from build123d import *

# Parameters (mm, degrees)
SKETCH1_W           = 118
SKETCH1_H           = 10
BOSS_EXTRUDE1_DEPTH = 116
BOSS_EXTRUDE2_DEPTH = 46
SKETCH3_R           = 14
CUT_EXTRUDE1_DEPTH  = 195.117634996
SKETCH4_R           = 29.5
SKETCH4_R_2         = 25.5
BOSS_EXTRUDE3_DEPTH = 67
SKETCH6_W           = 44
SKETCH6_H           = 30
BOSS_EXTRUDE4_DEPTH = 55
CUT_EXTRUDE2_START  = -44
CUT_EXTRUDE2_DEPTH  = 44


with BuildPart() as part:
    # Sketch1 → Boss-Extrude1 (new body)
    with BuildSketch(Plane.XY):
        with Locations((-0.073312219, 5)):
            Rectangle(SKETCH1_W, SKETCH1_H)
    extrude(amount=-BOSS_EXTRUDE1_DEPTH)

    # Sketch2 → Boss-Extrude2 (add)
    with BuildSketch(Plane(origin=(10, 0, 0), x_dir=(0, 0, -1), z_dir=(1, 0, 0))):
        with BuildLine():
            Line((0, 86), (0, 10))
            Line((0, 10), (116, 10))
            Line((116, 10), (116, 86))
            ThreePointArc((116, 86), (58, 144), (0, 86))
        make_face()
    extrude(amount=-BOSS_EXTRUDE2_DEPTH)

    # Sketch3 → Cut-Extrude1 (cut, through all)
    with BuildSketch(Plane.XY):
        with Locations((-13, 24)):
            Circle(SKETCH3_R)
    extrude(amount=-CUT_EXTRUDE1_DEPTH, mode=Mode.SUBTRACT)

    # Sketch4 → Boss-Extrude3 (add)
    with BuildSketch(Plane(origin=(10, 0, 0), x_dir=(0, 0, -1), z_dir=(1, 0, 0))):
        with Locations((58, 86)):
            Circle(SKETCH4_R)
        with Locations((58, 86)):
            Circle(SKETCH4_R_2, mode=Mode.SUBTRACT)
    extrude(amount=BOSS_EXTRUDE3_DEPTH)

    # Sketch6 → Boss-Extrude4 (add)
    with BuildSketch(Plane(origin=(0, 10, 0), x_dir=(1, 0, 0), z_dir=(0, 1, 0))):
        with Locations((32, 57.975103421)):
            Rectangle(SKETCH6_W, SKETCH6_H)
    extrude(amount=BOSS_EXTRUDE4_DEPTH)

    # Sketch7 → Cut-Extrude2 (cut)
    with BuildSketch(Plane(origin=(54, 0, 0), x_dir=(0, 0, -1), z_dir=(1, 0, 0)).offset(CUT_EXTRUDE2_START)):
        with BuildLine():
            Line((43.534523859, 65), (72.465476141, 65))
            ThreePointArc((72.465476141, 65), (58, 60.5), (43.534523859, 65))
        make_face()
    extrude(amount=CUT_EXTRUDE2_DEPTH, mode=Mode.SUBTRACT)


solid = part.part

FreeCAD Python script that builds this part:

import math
import FreeCAD as App
import Part
import Sketcher
from FreeCAD import Vector
Q = App.Units.Quantity

doc = App.newDocument("Part")
body = doc.addObject("PartDesign::Body", "Body")

# Sketch on XY plane
sketch1 = body.newObject("Sketcher::SketchObject", "Sketch")
sketch1.AttachmentSupport = (doc.getObject("XY_Plane"), [""])
sketch1.MapMode = "FlatFace"
sketch1.addGeometry([
    Part.LineSegment(Vector(-59.073312, 10, 0), Vector(-59.073312, 0, 0)),
    Part.LineSegment(Vector(-59.073312, 0, 0), Vector(58.926688, 0, 0)),
    Part.LineSegment(Vector(58.926688, 0, 0), Vector(58.926688, 10, 0)),
    Part.LineSegment(Vector(58.926688, 10, 0), Vector(-59.073312, 10, 0)),
], False)
sketch1.addConstraint([
    Sketcher.Constraint("Coincident", 0, 2, 1, 1),
    Sketcher.Constraint("Coincident", 1, 2, 2, 1),
    Sketcher.Constraint("Coincident", 2, 2, 3, 1),
    Sketcher.Constraint("Coincident", 3, 2, 0, 1),
    Sketcher.Constraint("Vertical", 0),
    Sketcher.Constraint("Horizontal", 1),
    Sketcher.Constraint("Vertical", 2),
    Sketcher.Constraint("Horizontal", 3),
    Sketcher.Constraint("PointOnObject", 0, 2, -1),
    Sketcher.Constraint("DistanceX", 1, 1, 1, 2, Q("118 mm")),
    Sketcher.Constraint("DistanceY", 0, 2, 0, 1, Q("10 mm")),
    Sketcher.Constraint("DistanceX", 0, 2, -1, 1, Q("59.073312 mm")),
])
pad1 = body.newObject("PartDesign::Pad", "Pad")
pad1.Profile = sketch1
pad1.Length = 116
pad1.Reversed = True

# Sketch on YZ plane
sketch2 = body.newObject("Sketcher::SketchObject", "Sketch001")
sketch2.AttachmentSupport = (doc.getObject("YZ_Plane"), [""])
sketch2.MapMode = "FlatFace"
sketch2.AttachmentOffset = App.Placement(Vector(0, 0, 10), App.Rotation())
sketch2.addGeometry([
    Part.LineSegment(Vector(86, 0, 0), Vector(10, 0, 0)),
    Part.LineSegment(Vector(10, 0, 0), Vector(10, -116, 0)),
    Part.LineSegment(Vector(10, -116, 0), Vector(86, -116, 0)),
    Part.ArcOfCircle(Part.Circle(Vector(86, -58, 0), Vector(0, 0, 1), 58), math.radians(-90), math.radians(90)),
], False)
sketch2.addConstraint([
    Sketcher.Constraint("Coincident", 0, 2, 1, 1),
    Sketcher.Constraint("Coincident", 1, 2, 2, 1),
    Sketcher.Constraint("Tangent", 2, 2, 3, 1),
    Sketcher.Constraint("Tangent", 3, 2, 0, 1),
    Sketcher.Constraint("Horizontal", 0),
    Sketcher.Constraint("Vertical", 1),
    Sketcher.Constraint("Horizontal", 2),
    Sketcher.Constraint("PointOnObject", 0, 2, -1),
    Sketcher.Constraint("Radius", 3, Q("58 mm")),
    Sketcher.Constraint("DistanceX", 0, 2, 0, 1, Q("76 mm")),
    Sketcher.Constraint("DistanceX", -1, 1, 3, 3, Q("86 mm")),
])
pad2 = body.newObject("PartDesign::Pad", "Pad001")
pad2.Profile = sketch2
pad2.Length = 46
pad2.Reversed = True

# Sketch on XY plane
sketch3 = body.newObject("Sketcher::SketchObject", "Sketch002")
sketch3.AttachmentSupport = (doc.getObject("XY_Plane"), [""])
sketch3.MapMode = "FlatFace"
sketch3.addGeometry(Part.Circle(Vector(-13, 24, 0), Vector(0, 0, 1), 14), False)
sketch3.addConstraint([
    Sketcher.Constraint("Diameter", 0, Q("28 mm")),
    Sketcher.Constraint("DistanceX", 0, 3, -1, 1, Q("13 mm")),
    Sketcher.Constraint("DistanceY", -1, 1, 0, 3, Q("24 mm")),
])
pocket1 = body.newObject("PartDesign::Pocket", "Pocket")
pocket1.Profile = sketch3
pocket1.Type = "ThroughAll"

# Sketch on YZ plane
sketch4 = body.newObject("Sketcher::SketchObject", "Sketch003")
sketch4.AttachmentSupport = (doc.getObject("YZ_Plane"), [""])
sketch4.MapMode = "FlatFace"
sketch4.AttachmentOffset = App.Placement(Vector(0, 0, 10), App.Rotation())
sketch4.addGeometry([
    Part.Circle(Vector(86, -58, 0), Vector(0, 0, 1), 29.5),
    Part.Circle(Vector(86, -58, 0), Vector(0, 0, 1), 25.5),
], False)
sketch4.addConstraint([
    Sketcher.Constraint("Coincident", 1, 3, 0, 3),
    Sketcher.Constraint("Diameter", 0, Q("59 mm")),
    Sketcher.Constraint("Diameter", 1, Q("51 mm")),
    Sketcher.Constraint("DistanceX", -1, 1, 0, 3, Q("86 mm")),
    Sketcher.Constraint("DistanceY", 0, 3, -1, 1, Q("58 mm")),
])
pad3 = body.newObject("PartDesign::Pad", "Pad002")
pad3.Profile = sketch4
pad3.Length = 67

# Sketch on XZ plane
sketch5 = body.newObject("Sketcher::SketchObject", "Sketch004")
sketch5.AttachmentSupport = (doc.getObject("XZ_Plane"), [""])
sketch5.MapMode = "FlatFace"
sketch5.AttachmentOffset = App.Placement(Vector(0, 0, -10), App.Rotation())
sketch5.addGeometry([
    Part.LineSegment(Vector(10, -72.975103, 0), Vector(10, -42.975103, 0)),
    Part.LineSegment(Vector(10, -42.975103, 0), Vector(54, -42.975103, 0)),
    Part.LineSegment(Vector(54, -42.975103, 0), Vector(54, -72.975103, 0)),
    Part.LineSegment(Vector(54, -72.975103, 0), Vector(10, -72.975103, 0)),
], False)
sketch5.addConstraint([
    Sketcher.Constraint("Coincident", 0, 2, 1, 1),
    Sketcher.Constraint("Coincident", 1, 2, 2, 1),
    Sketcher.Constraint("Coincident", 2, 2, 3, 1),
    Sketcher.Constraint("Coincident", 3, 2, 0, 1),
    Sketcher.Constraint("Vertical", 0),
    Sketcher.Constraint("Horizontal", 1),
    Sketcher.Constraint("Vertical", 2),
    Sketcher.Constraint("Horizontal", 3),
    Sketcher.Constraint("DistanceX", 1, 1, 1, 2, Q("44 mm")),
    Sketcher.Constraint("DistanceY", 0, 1, 0, 2, Q("30 mm")),
    Sketcher.Constraint("DistanceX", -1, 1, 0, 2, Q("10 mm")),
    Sketcher.Constraint("DistanceY", 0, 2, -1, 1, Q("42.975103 mm")),
])
pad4 = body.newObject("PartDesign::Pad", "Pad003")
pad4.Profile = sketch5
pad4.Length = 55
pad4.Reversed = True

# Sketch on YZ plane
sketch6 = body.newObject("Sketcher::SketchObject", "Sketch005")
sketch6.AttachmentSupport = (doc.getObject("YZ_Plane"), [""])
sketch6.MapMode = "FlatFace"
sketch6.AttachmentOffset = App.Placement(Vector(0, 0, 10), App.Rotation())
sketch6.addGeometry([
    Part.LineSegment(Vector(65, -72.465476, 0), Vector(65, -43.534524, 0)),
    Part.ArcOfCircle(Part.Circle(Vector(86, -58, 0), Vector(0, 0, 1), 25.5), math.radians(145.439678), math.radians(214.560322)),
], False)
sketch6.addConstraint([
    Sketcher.Constraint("Coincident", 0, 1, 1, 2),
    Sketcher.Constraint("Coincident", 1, 1, 0, 2),
    Sketcher.Constraint("Vertical", 0),
    Sketcher.Constraint("Radius", 1, Q("25.5 mm")),
    Sketcher.Constraint("DistanceX", -1, 1, 1, 3, Q("86 mm")),
    Sketcher.Constraint("DistanceY", 1, 3, -1, 1, Q("58 mm")),
    Sketcher.Constraint("DistanceX", -1, 1, 0, 1, Q("65 mm")),
])
pocket2 = body.newObject("PartDesign::Pocket", "Pocket001")
pocket2.Profile = sketch6
pocket2.Length = 44
pocket2.Reversed = True

doc.recompute()
